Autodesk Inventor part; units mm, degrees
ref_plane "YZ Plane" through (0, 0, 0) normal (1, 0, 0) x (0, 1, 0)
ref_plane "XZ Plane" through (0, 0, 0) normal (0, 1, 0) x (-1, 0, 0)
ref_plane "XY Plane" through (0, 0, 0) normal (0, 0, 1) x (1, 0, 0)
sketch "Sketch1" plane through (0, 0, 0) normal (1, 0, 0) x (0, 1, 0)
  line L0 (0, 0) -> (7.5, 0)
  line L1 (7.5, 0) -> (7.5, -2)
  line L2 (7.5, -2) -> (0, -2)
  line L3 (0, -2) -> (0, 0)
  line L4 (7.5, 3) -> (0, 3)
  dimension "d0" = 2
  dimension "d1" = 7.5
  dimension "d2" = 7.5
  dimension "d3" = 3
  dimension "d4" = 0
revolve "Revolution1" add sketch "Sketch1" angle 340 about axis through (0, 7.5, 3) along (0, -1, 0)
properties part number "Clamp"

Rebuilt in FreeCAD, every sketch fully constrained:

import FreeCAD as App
import Part
import Sketcher
Q = App.Units.Quantity

doc = App.newDocument("Part")
body = doc.addObject("PartDesign::Body", "Body")

# Sketch on YZ plane
sketch1 = doc.addObject("Sketcher::SketchObject", "Sketch")
body.addObject(sketch1)
sketch1.AttachmentSupport = (doc.YZ_Plane, [""])
sketch1.MapMode = "FlatFace"
sketch1.addGeometry([
    Part.LineSegment(App.Vector(7.5, 0, 0), App.Vector(0, 0, 0)),
    Part.LineSegment(App.Vector(0, 0, 0), App.Vector(0, -2, 0)),
    Part.LineSegment(App.Vector(0, -2, 0), App.Vector(7.5, -2, 0)),
    Part.LineSegment(App.Vector(7.5, -2, 0), App.Vector(7.5, 0, 0)),
], False)
sketch1.addGeometry(Part.LineSegment(App.Vector(7.5, 3, 0), App.Vector(0, 3, 0)), True)  # axis
sketch1.addConstraint([
    Sketcher.Constraint("Coincident", 0, 2, 1, 1),
    Sketcher.Constraint("Coincident", 1, 2, 2, 1),
    Sketcher.Constraint("Coincident", 2, 2, 3, 1),
    Sketcher.Constraint("Coincident", 3, 2, 0, 1),
    Sketcher.Constraint("Horizontal", 0),
    Sketcher.Constraint("Vertical", 1),
    Sketcher.Constraint("Horizontal", 2),
    Sketcher.Constraint("Vertical", 3),
    Sketcher.Constraint("Horizontal", 4),
    Sketcher.Constraint("Coincident", 0, 2, -1, 1),
    Sketcher.Constraint("PointOnObject", 4, 2, -2),
    Sketcher.Constraint("Vertical", 3, 2, 4, 1),
    Sketcher.Constraint("DistanceY", 1, 2, 1, 1, Q("2 mm")),
    Sketcher.Constraint("DistanceX", 0, 2, 0, 1, Q("7.5 mm")),
    Sketcher.Constraint("DistanceY", -1, 1, 4, 1, Q("3 mm")),
])
revolution = doc.addObject("PartDesign::Revolution", "Revolution")
body.addObject(revolution)
revolution.Profile = sketch1
revolution.ReferenceAxis = (sketch1, ["Axis0"])
revolution.Angle = 340

doc.recompute()
